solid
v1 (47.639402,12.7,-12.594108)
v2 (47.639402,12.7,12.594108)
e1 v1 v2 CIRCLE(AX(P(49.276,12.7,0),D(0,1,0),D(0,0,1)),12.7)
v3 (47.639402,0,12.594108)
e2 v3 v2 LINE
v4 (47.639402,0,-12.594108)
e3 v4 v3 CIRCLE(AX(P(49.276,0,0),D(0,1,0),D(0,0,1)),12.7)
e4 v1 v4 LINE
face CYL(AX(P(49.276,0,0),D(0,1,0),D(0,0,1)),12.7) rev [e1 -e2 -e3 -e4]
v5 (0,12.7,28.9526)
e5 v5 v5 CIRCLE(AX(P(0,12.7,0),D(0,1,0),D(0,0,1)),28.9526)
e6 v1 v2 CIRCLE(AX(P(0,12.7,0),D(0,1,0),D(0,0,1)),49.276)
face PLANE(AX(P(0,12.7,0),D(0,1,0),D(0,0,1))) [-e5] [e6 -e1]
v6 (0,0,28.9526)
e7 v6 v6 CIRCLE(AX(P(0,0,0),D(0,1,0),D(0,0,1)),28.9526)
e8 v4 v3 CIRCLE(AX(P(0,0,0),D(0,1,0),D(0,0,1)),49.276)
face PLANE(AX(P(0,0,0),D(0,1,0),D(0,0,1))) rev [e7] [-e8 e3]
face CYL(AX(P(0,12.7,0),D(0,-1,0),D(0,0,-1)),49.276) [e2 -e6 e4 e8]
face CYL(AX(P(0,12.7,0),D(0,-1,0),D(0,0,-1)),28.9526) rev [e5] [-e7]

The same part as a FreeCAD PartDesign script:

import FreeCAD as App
import Part
import Sketcher

V = App.Vector
Q = App.Units.Quantity

doc = App.newDocument("Part")
params = doc.addObject("Spreadsheet::Sheet", "Params")
for row, (alias, value) in enumerate([
    ("sketch1_diameter", "3.88 in"),
    ("pad1_length", "0.5 in"),
    ("sketch3_diameter", "1 in"),
], start=1):
    params.set(f"A{row}", alias)
    params.set(f"B{row}", "=" + value)
    params.setAlias(f"B{row}", alias)

body = doc.addObject("PartDesign::Body", "Body")

sketch1 = body.newObject("Sketcher::SketchObject", "Sketch")
sketch1.AttachmentSupport = (doc.getObject("XZ_Plane"), [""])
sketch1.MapMode = "FlatFace"
sketch1.addGeometry(Part.Circle(V(0, 0, 0), V(0, 0, 1), 49), False)
sketch1.addConstraint(Sketcher.Constraint("Coincident", 0, 3, -1, 1))
sketch1.addConstraint(Sketcher.Constraint("Diameter", 0, Q("3.88 in")))
sketch1.setExpression("Constraints[1]", "Params.sketch1_diameter")
pad1 = body.newObject("PartDesign::Pad", "Pad")
pad1.Profile = sketch1
pad1.setExpression("Length", "Params.pad1_length")
pad1.Reversed = True

sketch2 = body.newObject("Sketcher::SketchObject", "Sketch001")
sketch2.AttachmentSupport = (doc.getObject("XZ_Plane"), [""])
sketch2.MapMode = "FlatFace"
sketch2.addGeometry(Part.Circle(V(0, 0, 0), V(0, 0, 1), 29), False)
sketch2.addConstraint(Sketcher.Constraint("Coincident", 0, 3, -1, 1))
sketch2.addConstraint(Sketcher.Constraint("Diameter", 0, 57.9052))
pocket1 = body.newObject("PartDesign::Pocket", "Pocket")
pocket1.Profile = sketch2
pocket1.Type = "ThroughAll"

sketch3 = body.newObject("Sketcher::SketchObject", "Sketch002")
sketch3.AttachmentSupport = (doc.getObject("XZ_Plane"), [""])
sketch3.MapMode = "FlatFace"
sketch3.AttachmentOffset = App.Placement(V(0, 0, -0.5 * 25.4), App.Rotation())
sketch3.addGeometry(Part.Circle(V(49, 0, 0), V(0, 0, 1), 13), False)
sketch3.addConstraint(Sketcher.Constraint("PointOnObject", 0, 3, -1))
sketch3.addConstraint(Sketcher.Constraint("Diameter", 0, Q("1 in")))
sketch3.addConstraint(Sketcher.Constraint("DistanceX", -1, 1, 0, 3, Q("1.94 in")))
sketch3.setExpression("Constraints[1]", "Params.sketch3_diameter")
pocket2 = body.newObject("PartDesign::Pocket", "Pocket001")
pocket2.Profile = sketch3
pocket2.Type = "ThroughAll"
pocket2.Reversed = True

doc.recompute()
